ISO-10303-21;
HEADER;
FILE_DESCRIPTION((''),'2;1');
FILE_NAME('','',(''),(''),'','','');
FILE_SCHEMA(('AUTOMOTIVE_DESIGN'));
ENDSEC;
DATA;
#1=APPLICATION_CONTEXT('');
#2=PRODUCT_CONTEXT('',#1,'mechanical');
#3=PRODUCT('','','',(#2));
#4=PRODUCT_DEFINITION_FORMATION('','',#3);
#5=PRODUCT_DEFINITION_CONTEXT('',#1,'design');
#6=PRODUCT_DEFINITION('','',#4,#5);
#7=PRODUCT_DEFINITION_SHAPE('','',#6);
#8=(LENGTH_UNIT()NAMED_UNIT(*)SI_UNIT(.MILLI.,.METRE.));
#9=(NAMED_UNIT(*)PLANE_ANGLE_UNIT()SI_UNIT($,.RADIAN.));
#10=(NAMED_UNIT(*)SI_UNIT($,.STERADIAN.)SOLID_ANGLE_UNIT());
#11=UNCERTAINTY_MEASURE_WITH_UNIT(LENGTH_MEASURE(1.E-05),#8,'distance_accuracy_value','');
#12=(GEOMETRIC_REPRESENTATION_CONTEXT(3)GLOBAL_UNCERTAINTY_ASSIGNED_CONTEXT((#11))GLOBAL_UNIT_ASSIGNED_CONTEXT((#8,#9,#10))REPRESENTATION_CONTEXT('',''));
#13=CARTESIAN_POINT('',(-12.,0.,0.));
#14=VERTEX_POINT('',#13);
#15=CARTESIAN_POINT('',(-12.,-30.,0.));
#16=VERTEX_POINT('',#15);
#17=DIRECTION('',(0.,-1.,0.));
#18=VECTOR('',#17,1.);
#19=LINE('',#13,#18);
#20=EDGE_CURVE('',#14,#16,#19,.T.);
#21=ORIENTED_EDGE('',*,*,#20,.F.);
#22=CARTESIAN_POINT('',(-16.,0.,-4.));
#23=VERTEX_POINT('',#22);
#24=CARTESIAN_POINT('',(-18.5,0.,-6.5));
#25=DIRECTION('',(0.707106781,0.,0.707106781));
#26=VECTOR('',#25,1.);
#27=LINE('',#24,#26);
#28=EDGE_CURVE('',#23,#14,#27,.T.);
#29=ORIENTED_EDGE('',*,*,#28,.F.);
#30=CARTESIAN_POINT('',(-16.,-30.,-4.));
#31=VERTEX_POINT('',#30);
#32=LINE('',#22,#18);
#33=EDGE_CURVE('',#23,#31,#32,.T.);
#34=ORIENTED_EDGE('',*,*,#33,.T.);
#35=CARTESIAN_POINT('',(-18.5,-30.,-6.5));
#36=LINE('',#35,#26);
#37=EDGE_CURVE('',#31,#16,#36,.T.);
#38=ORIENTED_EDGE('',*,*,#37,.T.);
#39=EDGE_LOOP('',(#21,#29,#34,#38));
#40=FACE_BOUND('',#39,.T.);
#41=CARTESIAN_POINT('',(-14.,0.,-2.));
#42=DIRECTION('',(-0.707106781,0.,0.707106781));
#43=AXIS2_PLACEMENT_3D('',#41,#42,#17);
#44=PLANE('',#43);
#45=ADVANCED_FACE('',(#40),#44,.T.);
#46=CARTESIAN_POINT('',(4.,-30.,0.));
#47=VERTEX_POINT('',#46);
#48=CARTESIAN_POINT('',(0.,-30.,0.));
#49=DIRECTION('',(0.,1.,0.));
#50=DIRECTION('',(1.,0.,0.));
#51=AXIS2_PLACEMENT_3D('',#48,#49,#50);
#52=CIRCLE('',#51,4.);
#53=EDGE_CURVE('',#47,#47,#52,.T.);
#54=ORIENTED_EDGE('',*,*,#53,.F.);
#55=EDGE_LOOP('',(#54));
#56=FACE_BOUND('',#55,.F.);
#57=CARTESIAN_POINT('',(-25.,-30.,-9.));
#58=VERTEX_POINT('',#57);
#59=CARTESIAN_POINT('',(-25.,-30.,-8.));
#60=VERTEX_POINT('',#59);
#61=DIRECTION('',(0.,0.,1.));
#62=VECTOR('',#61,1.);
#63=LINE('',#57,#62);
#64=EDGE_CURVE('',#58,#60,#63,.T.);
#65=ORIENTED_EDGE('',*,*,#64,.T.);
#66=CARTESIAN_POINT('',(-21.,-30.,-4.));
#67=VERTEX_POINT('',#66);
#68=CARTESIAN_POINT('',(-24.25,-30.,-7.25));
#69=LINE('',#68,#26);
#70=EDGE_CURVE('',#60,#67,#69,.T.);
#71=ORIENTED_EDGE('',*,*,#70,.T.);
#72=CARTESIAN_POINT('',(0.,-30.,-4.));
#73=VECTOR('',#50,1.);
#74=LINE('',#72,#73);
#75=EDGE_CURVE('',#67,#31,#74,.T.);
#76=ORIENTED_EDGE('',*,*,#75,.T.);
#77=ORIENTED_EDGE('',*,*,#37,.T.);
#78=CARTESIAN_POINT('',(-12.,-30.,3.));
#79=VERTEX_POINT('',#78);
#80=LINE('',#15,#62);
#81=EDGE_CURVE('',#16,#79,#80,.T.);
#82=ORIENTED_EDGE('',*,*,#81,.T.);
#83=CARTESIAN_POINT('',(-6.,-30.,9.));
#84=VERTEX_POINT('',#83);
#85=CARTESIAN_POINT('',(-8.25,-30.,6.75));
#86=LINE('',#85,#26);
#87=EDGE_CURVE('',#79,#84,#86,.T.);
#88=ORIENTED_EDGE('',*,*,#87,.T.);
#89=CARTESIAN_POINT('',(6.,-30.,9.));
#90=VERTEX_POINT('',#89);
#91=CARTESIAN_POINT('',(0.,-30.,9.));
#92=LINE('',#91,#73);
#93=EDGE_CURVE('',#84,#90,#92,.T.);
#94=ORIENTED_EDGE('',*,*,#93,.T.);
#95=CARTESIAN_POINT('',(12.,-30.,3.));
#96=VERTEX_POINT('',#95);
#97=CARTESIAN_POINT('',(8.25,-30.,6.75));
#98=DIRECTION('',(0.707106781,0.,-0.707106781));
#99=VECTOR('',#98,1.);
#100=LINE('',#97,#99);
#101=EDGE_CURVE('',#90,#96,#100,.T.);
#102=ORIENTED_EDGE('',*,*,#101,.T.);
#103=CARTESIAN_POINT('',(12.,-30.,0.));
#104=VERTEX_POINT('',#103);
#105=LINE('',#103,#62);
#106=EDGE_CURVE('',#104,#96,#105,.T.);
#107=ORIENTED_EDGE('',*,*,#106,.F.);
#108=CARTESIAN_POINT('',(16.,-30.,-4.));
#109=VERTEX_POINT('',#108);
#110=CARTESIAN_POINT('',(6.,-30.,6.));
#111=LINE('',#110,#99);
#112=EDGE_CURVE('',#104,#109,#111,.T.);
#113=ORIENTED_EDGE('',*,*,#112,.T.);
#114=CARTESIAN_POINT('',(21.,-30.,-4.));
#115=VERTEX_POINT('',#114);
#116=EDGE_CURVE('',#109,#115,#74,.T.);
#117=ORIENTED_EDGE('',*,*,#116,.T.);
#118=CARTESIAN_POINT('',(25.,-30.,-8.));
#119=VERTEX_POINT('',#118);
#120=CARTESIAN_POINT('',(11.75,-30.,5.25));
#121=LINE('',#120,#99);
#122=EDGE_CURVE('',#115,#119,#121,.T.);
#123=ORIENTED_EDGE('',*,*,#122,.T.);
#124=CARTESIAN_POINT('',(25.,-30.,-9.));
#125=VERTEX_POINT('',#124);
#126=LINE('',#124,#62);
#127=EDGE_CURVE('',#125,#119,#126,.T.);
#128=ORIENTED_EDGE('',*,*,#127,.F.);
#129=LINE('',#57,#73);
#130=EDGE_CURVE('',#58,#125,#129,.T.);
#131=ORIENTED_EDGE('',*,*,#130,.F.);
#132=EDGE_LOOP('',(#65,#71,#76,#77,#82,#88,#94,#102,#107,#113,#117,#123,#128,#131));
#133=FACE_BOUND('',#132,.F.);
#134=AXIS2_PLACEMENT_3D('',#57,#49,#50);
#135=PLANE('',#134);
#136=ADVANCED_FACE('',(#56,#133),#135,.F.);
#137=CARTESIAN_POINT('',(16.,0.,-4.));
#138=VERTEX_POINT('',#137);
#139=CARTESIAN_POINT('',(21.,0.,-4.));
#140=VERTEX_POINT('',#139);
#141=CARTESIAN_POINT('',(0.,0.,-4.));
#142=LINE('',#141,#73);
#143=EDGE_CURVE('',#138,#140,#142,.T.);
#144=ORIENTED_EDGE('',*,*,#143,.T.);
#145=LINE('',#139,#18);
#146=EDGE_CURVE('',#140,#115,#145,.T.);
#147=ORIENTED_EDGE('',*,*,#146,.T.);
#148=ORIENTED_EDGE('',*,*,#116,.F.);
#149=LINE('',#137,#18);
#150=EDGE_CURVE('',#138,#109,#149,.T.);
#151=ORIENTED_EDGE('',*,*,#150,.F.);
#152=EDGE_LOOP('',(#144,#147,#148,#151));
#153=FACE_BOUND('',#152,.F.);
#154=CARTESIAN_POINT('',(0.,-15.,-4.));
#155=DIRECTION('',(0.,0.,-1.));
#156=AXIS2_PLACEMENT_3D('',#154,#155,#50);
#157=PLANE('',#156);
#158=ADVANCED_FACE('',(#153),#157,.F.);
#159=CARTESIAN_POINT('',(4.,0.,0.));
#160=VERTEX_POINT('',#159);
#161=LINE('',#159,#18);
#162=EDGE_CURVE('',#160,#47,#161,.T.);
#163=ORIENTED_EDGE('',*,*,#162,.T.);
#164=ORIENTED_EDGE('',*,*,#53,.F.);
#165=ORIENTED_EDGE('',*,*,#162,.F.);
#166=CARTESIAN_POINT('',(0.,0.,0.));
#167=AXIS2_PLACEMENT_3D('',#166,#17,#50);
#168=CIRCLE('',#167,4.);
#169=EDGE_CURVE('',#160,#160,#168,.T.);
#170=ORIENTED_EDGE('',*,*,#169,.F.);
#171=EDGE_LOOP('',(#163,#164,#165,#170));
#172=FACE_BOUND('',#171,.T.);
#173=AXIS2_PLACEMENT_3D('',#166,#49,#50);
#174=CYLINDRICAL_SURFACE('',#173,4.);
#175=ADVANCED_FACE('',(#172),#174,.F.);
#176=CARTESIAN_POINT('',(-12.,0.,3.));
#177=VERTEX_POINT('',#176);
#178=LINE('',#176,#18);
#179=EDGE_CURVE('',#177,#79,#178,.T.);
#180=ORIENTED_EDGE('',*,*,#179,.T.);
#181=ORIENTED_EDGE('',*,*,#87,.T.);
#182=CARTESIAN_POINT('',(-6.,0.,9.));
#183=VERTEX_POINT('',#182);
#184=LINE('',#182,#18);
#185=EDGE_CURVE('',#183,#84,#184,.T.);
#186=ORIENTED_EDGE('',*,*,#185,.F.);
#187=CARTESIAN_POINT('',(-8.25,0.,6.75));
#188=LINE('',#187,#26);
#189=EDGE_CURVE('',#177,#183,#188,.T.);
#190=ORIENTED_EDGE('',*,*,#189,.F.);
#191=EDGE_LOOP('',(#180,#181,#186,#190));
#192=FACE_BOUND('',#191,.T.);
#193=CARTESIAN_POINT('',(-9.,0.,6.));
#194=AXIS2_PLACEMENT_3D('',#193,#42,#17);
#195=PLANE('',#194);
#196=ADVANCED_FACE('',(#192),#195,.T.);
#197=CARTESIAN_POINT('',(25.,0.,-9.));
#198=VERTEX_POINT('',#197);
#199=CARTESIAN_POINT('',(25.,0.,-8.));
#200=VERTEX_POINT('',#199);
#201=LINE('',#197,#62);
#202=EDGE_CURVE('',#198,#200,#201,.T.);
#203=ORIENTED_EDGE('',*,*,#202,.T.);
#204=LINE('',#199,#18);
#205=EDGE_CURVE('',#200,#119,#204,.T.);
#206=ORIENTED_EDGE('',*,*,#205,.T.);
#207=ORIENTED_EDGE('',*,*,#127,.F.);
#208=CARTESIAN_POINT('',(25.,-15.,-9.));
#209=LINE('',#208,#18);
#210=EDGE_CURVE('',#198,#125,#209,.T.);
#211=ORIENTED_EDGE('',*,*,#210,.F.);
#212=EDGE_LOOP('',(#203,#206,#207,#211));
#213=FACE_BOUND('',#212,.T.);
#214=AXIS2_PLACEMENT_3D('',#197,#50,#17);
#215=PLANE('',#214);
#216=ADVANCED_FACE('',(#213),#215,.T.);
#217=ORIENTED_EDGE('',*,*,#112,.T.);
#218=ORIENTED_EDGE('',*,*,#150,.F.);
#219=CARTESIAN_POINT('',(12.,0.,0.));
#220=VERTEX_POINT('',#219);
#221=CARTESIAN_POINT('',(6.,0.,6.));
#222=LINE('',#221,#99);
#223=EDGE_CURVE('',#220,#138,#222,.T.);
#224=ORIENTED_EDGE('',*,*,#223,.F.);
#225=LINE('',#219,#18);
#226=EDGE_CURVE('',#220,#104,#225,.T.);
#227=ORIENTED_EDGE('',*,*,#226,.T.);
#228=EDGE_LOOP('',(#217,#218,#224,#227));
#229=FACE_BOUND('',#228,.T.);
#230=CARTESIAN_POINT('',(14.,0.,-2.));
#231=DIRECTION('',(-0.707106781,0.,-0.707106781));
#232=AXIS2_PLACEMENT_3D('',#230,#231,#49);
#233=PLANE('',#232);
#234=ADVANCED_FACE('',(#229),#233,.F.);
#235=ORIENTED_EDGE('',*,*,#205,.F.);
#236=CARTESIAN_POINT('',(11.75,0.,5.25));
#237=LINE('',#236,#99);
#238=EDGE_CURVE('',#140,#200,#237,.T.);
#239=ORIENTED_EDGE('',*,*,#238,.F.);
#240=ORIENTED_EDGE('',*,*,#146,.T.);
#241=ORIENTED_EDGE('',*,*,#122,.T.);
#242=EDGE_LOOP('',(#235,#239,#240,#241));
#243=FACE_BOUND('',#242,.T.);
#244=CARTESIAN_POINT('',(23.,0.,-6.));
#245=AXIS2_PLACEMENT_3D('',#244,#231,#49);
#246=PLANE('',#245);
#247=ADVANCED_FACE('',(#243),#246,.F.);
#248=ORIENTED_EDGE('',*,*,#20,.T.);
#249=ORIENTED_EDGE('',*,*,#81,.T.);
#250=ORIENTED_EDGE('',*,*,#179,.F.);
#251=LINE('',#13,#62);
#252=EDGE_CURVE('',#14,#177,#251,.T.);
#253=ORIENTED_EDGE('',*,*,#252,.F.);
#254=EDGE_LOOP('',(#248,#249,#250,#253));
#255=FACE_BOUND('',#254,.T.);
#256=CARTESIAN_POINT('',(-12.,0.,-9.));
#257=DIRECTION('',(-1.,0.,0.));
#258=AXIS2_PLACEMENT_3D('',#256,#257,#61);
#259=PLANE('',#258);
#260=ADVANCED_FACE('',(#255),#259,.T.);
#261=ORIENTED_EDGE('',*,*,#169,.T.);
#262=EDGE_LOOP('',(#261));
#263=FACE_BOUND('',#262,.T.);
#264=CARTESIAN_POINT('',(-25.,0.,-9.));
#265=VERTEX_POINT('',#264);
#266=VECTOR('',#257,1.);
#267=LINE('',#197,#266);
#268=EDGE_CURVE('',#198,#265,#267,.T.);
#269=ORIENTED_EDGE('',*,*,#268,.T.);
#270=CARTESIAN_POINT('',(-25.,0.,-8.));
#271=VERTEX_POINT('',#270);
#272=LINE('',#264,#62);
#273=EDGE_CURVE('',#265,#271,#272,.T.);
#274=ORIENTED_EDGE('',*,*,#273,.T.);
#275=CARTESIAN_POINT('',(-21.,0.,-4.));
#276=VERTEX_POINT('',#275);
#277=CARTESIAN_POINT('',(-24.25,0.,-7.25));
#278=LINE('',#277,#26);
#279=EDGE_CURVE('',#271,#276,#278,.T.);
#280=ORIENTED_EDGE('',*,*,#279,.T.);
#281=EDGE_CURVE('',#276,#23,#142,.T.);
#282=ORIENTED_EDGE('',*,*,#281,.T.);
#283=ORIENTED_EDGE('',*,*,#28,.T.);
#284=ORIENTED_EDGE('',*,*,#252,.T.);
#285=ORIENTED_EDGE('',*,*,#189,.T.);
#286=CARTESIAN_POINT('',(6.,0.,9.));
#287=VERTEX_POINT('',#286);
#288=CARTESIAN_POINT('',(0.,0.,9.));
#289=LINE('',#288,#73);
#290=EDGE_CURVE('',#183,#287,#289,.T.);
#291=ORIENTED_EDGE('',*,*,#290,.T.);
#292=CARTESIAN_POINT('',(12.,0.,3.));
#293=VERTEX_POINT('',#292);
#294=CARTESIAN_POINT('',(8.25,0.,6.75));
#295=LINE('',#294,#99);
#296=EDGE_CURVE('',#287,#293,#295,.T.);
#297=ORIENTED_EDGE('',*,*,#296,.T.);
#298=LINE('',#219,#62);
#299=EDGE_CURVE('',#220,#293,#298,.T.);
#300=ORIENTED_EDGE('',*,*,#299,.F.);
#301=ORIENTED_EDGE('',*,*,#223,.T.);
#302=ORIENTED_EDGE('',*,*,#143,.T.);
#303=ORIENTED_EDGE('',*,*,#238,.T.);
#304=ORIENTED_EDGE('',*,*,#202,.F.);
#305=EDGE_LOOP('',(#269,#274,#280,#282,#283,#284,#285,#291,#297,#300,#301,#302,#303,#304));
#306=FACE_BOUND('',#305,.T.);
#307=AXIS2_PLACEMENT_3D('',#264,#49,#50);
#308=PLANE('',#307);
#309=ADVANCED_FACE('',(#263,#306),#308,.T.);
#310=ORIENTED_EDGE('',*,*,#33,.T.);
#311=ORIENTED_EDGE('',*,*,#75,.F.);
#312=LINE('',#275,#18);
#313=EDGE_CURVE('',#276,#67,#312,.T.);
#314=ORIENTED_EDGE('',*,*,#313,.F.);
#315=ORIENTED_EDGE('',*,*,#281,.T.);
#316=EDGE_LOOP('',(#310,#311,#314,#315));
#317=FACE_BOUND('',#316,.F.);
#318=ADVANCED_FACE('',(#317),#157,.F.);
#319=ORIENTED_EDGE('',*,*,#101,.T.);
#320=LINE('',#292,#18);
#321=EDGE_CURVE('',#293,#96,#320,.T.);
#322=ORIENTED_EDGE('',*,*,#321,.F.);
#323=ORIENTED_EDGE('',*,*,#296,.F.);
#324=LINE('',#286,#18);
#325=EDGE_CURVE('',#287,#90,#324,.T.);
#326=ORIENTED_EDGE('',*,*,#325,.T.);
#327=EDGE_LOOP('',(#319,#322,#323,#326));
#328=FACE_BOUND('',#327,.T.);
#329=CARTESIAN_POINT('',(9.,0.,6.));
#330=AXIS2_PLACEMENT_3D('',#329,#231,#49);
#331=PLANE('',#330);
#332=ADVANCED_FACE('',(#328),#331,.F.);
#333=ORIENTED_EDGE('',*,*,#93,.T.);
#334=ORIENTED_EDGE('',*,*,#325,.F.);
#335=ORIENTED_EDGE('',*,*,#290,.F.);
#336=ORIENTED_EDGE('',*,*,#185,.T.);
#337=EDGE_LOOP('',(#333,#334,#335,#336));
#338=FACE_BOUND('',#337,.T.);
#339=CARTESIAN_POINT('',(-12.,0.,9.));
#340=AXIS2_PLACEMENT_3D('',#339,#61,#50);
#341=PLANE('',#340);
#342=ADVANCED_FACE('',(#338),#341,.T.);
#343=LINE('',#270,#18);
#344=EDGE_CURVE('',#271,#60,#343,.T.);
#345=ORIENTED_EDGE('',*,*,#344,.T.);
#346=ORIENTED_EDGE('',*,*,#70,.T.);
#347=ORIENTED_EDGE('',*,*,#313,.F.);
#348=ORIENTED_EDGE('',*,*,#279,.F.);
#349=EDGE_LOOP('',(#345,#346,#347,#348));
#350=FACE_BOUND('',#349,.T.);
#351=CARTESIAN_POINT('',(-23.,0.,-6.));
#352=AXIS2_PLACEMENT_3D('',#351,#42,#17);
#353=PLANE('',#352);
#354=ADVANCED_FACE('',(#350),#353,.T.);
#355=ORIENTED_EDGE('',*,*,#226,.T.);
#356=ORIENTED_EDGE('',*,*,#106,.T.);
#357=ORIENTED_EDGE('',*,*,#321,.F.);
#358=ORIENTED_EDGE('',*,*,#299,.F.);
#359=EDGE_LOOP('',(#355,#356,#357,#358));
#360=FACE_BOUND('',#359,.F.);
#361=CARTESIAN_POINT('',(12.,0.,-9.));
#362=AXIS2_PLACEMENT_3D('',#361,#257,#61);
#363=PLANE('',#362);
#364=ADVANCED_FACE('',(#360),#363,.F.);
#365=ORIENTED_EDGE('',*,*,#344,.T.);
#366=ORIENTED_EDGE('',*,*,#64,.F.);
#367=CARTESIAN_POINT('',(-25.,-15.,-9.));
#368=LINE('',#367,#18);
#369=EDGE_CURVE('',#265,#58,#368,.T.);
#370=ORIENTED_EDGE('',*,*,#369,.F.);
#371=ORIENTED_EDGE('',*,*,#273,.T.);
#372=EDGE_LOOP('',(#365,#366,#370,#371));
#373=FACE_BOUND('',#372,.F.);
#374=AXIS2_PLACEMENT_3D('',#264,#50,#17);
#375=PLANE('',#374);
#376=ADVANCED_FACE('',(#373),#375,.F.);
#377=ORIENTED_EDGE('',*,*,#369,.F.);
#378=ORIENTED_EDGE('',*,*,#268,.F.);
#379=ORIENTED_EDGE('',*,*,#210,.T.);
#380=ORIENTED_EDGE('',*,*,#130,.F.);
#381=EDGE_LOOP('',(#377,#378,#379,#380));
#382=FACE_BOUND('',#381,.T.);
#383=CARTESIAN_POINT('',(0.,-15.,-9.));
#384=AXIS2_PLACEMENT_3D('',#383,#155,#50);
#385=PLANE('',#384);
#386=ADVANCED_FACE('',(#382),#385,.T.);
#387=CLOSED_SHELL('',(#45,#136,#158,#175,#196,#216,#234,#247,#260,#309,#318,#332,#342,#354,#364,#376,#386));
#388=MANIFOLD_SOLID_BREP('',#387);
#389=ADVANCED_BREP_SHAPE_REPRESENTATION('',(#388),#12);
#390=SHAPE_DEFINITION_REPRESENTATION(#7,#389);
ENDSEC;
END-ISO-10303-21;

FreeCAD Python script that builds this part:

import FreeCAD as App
import Part
import Sketcher

V = App.Vector


def edges_at(feature, points):
    """Names of the edges that pass closest to the given points."""
    edges = feature.Shape.Edges
    near = lambda p: min(range(len(edges)), key=lambda i: edges[i].distToShape(Part.Vertex(*p))[0])
    return sorted({f"Edge{near(p) + 1}" for p in points})

doc = App.newDocument("Part")
params = doc.addObject("Spreadsheet::Sheet", "Params")
for row, (alias, value) in enumerate([
    ("sketch1_diameter", "8 mm"),
    ("sketch1_width", "24 mm"),
    ("sketch1_height", "18 mm"),
    ("pad1_length", "30 mm"),
    ("chamfer_size", "6 mm"),
    ("sketch2_width", "50 mm"),
    ("sketch2_height", "30 mm"),
    ("pad2_length", "5 mm"),
    ("chamfer2_size", "4 mm"),
], start=1):
    params.set(f"A{row}", alias)
    params.set(f"B{row}", "=" + value)
    params.setAlias(f"B{row}", alias)

body = doc.addObject("PartDesign::Body", "Body")

sketch1 = body.newObject("Sketcher::SketchObject", "Sketch")
sketch1.AttachmentSupport = (doc.getObject("XZ_Plane"), [""])
sketch1.MapMode = "FlatFace"
sketch1.addGeometry([
    Part.LineSegment(V(-12, 9, 0), V(-12, -9, 0)),
    Part.LineSegment(V(-12, -9, 0), V(12, -9, 0)),
    Part.LineSegment(V(12, -9, 0), V(12, 9, 0)),
    Part.LineSegment(V(12, 9, 0), V(-12, 9, 0)),
    Part.Circle(V(0, 0, 0), V(0, 0, 1), 4),
], False)
sketch1.addConstraint([
    Sketcher.Constraint("Coincident", 0, 2, 1, 1),
    Sketcher.Constraint("Coincident", 1, 2, 2, 1),
    Sketcher.Constraint("Coincident", 2, 2, 3, 1),
    Sketcher.Constraint("Coincident", 3, 2, 0, 1),
    Sketcher.Constraint("Vertical", 0),
    Sketcher.Constraint("Horizontal", 1),
    Sketcher.Constraint("Vertical", 2),
    Sketcher.Constraint("Horizontal", 3),
    Sketcher.Constraint("Coincident", 4, 3, -1, 1),
    Sketcher.Constraint("Symmetric", 0, 2, 2, 2, -1, 1),
    Sketcher.Constraint("Diameter", 4, 8.0),
    Sketcher.Constraint("DistanceX", 1, 1, 1, 2, 24.0),
    Sketcher.Constraint("DistanceY", 0, 2, 0, 1, 18.0),
])
sketch1.setExpression("Constraints[10]", "Params.sketch1_diameter")
sketch1.setExpression("Constraints[11]", "Params.sketch1_width")
sketch1.setExpression("Constraints[12]", "Params.sketch1_height")
pad1 = body.newObject("PartDesign::Pad", "Pad")
pad1.Profile = sketch1
pad1.setExpression("Length", "Params.pad1_length")
doc.recompute()

chamfer = body.newObject("PartDesign::Chamfer", "Chamfer")
chamfer.Base = (pad1, edges_at(pad1, [(12, -15, 9), (-12, -15, 9)]))
chamfer.setExpression("Size", "Params.chamfer_size")

sketch2 = body.newObject("Sketcher::SketchObject", "Sketch001")
sketch2.AttachmentSupport = (doc.getObject("XY_Plane"), [""])
sketch2.MapMode = "FlatFace"
sketch2.AttachmentOffset = App.Placement(V(0, 0, -9), App.Rotation())
sketch2.addGeometry([
    Part.LineSegment(V(-25, -30, 0), V(-25, 0, 0)),
    Part.LineSegment(V(-25, 0, 0), V(25, 0, 0)),
    Part.LineSegment(V(25, 0, 0), V(25, -30, 0)),
    Part.LineSegment(V(25, -30, 0), V(-25, -30, 0)),
], False)
sketch2.addConstraint([
    Sketcher.Constraint("Coincident", 0, 2, 1, 1),
    Sketcher.Constraint("Coincident", 1, 2, 2, 1),
    Sketcher.Constraint("Coincident", 2, 2, 3, 1),
    Sketcher.Constraint("Coincident", 3, 2, 0, 1),
    Sketcher.Constraint("Vertical", 0),
    Sketcher.Constraint("Horizontal", 1),
    Sketcher.Constraint("Vertical", 2),
    Sketcher.Constraint("Horizontal", 3),
    Sketcher.Constraint("Symmetric", 0, 2, 1, 2, -1, 1),
    Sketcher.Constraint("DistanceX", 1, 1, 1, 2, 50.0),
    Sketcher.Constraint("DistanceY", 0, 1, 0, 2, 30.0),
])
sketch2.setExpression("Constraints[9]", "Params.sketch2_width")
sketch2.setExpression("Constraints[10]", "Params.sketch2_height")
pad2 = body.newObject("PartDesign::Pad", "Pad001")
pad2.Profile = sketch2
pad2.setExpression("Length", "Params.pad2_length")
doc.recompute()

chamfer2 = body.newObject("PartDesign::Chamfer", "Chamfer001")
chamfer2.Base = (pad2, edges_at(pad2, [
    (12, -15, -4),
    (-12, -15, -4),
    (-25, -15, -4),
    (25, -15, -4),
]))
chamfer2.setExpression("Size", "Params.chamfer2_size")

doc.recompute()
